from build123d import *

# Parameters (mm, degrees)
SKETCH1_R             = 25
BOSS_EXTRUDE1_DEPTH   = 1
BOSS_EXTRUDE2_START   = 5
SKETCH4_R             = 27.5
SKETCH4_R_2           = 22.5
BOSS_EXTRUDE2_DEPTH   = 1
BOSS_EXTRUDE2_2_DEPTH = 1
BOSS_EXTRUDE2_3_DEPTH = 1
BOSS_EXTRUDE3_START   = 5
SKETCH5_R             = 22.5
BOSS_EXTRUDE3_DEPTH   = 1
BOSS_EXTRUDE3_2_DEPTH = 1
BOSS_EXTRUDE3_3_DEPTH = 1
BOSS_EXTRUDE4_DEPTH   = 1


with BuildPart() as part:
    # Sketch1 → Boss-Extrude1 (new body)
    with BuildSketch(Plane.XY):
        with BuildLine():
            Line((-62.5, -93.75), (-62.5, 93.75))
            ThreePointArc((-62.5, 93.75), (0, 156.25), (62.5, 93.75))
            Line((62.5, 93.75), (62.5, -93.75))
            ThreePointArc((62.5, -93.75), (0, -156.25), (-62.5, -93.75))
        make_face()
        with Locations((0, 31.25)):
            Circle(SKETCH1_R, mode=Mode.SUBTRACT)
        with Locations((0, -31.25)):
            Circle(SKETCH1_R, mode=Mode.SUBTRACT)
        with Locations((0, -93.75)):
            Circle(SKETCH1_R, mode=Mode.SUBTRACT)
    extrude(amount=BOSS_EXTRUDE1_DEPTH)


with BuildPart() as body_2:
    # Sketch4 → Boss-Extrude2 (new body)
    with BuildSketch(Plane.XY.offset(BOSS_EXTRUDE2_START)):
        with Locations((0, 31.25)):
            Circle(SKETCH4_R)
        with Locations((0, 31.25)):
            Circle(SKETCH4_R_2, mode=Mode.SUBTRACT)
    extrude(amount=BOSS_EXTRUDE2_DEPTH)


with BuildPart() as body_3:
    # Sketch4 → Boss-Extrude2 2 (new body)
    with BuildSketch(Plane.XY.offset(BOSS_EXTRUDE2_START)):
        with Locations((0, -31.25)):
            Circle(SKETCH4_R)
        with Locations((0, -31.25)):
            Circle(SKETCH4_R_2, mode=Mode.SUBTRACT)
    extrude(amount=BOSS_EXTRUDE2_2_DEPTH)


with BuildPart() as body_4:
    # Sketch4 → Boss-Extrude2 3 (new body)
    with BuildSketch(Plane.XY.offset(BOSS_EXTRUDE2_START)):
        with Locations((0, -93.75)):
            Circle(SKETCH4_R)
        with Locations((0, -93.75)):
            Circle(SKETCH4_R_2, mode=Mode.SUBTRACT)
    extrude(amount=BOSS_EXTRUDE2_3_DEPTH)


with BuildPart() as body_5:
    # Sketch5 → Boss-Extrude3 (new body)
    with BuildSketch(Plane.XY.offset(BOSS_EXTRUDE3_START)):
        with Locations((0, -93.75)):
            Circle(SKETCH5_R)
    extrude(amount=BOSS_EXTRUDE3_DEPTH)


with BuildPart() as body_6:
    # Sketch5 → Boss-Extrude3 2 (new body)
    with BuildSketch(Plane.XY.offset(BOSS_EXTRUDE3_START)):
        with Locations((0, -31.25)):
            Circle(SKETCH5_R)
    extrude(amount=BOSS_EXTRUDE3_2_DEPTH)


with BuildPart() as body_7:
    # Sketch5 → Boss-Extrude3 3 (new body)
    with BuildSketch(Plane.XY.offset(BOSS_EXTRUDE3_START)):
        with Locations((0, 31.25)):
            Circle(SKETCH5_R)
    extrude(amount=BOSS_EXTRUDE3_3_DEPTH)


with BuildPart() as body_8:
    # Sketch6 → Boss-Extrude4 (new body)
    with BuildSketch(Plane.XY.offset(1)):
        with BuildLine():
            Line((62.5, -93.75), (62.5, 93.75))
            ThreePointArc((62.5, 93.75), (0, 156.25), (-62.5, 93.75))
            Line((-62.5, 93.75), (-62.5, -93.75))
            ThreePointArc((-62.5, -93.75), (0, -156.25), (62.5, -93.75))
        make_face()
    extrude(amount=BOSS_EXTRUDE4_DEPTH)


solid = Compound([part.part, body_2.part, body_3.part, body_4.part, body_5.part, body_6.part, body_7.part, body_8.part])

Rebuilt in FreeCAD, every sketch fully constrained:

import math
import FreeCAD as App
import Part
import Sketcher
from FreeCAD import Vector
Q = App.Units.Quantity

doc = App.newDocument("Part")
body = doc.addObject("PartDesign::Body", "Body")

sketch1 = doc.addObject("Sketcher::SketchObject", "Sketch")
body.addObject(sketch1)
sketch1.AttachmentSupport = (doc.XY_Plane, [""])
sketch1.MapMode = "FlatFace"
sketch1.addGeometry([
    Part.LineSegment(Vector(-62, 94, 0), Vector(-62, -94, 0)),
    Part.ArcOfCircle(Part.Circle(Vector(0, -94, 0), Vector(0, 0, 1), 62), math.radians(180), math.radians(360)),
    Part.LineSegment(Vector(62, -94, 0), Vector(62, 94, 0)),
    Part.ArcOfCircle(Part.Circle(Vector(0, 94, 0), Vector(0, 0, 1), 62), math.radians(0), math.radians(180)),
    Part.Circle(Vector(0, -94, 0), Vector(0, 0, 1), 25),
    Part.Circle(Vector(0, -31, 0), Vector(0, 0, 1), 25),
    Part.Circle(Vector(0, 31, 0), Vector(0, 0, 1), 25),
], False)
sketch1.addConstraint([
    Sketcher.Constraint("Tangent", 0, 2, 1, 1),
    Sketcher.Constraint("Tangent", 1, 2, 2, 1),
    Sketcher.Constraint("Tangent", 2, 2, 3, 1),
    Sketcher.Constraint("Tangent", 3, 2, 0, 1),
    Sketcher.Constraint("Vertical", 0),
    Sketcher.Constraint("Vertical", 2),
    Sketcher.Constraint("Coincident", 4, 3, 1, 3),
    Sketcher.Constraint("Equal", 4, 5),
    Sketcher.Constraint("Equal", 5, 6),
    Sketcher.Constraint("Symmetric", 1, 3, 3, 3, -1, 1),
    Sketcher.Constraint("Symmetric", 5, 3, 6, 3, -1, 1),
    Sketcher.Constraint("PointOnObject", 5, 3, -2),
    Sketcher.Constraint("Diameter", 4, Q("50 mm")),
    Sketcher.Constraint("Radius", 1, Q("62.5 mm")),
    Sketcher.Constraint("DistanceY", 0, 2, 0, 1, Q("187.5 mm")),
    Sketcher.Constraint("DistanceY", 5, 3, 3, 3, Q("125 mm")),
])
pad1 = doc.addObject("PartDesign::Pad", "Pad")
body.addObject(pad1)
pad1.Profile = sketch1
pad1.Length = 1
body2 = doc.addObject("PartDesign::Body", "Body001")

sketch2 = doc.addObject("Sketcher::SketchObject", "Sketch001")
body2.addObject(sketch2)
sketch2.AttachmentSupport = (doc.getObject("XY_Plane001"), [""])
sketch2.MapMode = "FlatFace"
sketch2.AttachmentOffset = App.Placement(Vector(0, 0, 5), App.Rotation())
sketch2.addGeometry([
    Part.Circle(Vector(0, 31, 0), Vector(0, 0, 1), 28),
    Part.Circle(Vector(0, 31, 0), Vector(0, 0, 1), 22),
], False)
sketch2.addConstraint([
    Sketcher.Constraint("Coincident", 1, 3, 0, 3),
    Sketcher.Constraint("PointOnObject", 0, 3, -2),
    Sketcher.Constraint("Diameter", 0, Q("55 mm")),
    Sketcher.Constraint("Diameter", 1, Q("45 mm")),
    Sketcher.Constraint("DistanceY", -1, 1, 0, 3, Q("31.25 mm")),
])
pad2 = doc.addObject("PartDesign::Pad", "Pad001")
body2.addObject(pad2)
pad2.Profile = sketch2
pad2.Length = 1
body3 = doc.addObject("PartDesign::Body", "Body002")

sketch3 = doc.addObject("Sketcher::SketchObject", "Sketch002")
body3.addObject(sketch3)
sketch3.AttachmentSupport = (doc.getObject("XY_Plane002"), [""])
sketch3.MapMode = "FlatFace"
sketch3.AttachmentOffset = App.Placement(Vector(0, 0, 5), App.Rotation())
sketch3.addGeometry([
    Part.Circle(Vector(0, -31, 0), Vector(0, 0, 1), 28),
    Part.Circle(Vector(0, -31, 0), Vector(0, 0, 1), 22),
], False)
sketch3.addConstraint([
    Sketcher.Constraint("Coincident", 1, 3, 0, 3),
    Sketcher.Constraint("PointOnObject", 0, 3, -2),
    Sketcher.Constraint("Diameter", 0, Q("55 mm")),
    Sketcher.Constraint("Diameter", 1, Q("45 mm")),
    Sketcher.Constraint("DistanceY", 0, 3, -1, 1, Q("31.25 mm")),
])
pad3 = doc.addObject("PartDesign::Pad", "Pad002")
body3.addObject(pad3)
pad3.Profile = sketch3
pad3.Length = 1
body4 = doc.addObject("PartDesign::Body", "Body003")

sketch4 = doc.addObject("Sketcher::SketchObject", "Sketch003")
body4.addObject(sketch4)
sketch4.AttachmentSupport = (doc.getObject("XY_Plane003"), [""])
sketch4.MapMode = "FlatFace"
sketch4.AttachmentOffset = App.Placement(Vector(0, 0, 5), App.Rotation())
sketch4.addGeometry([
    Part.Circle(Vector(0, -94, 0), Vector(0, 0, 1), 28),
    Part.Circle(Vector(0, -94, 0), Vector(0, 0, 1), 22),
], False)
sketch4.addConstraint([
    Sketcher.Constraint("Coincident", 1, 3, 0, 3),
    Sketcher.Constraint("PointOnObject", 0, 3, -2),
    Sketcher.Constraint("Diameter", 0, Q("55 mm")),
    Sketcher.Constraint("Diameter", 1, Q("45 mm")),
    Sketcher.Constraint("DistanceY", 0, 3, -1, 1, Q("93.75 mm")),
])
pad4 = doc.addObject("PartDesign::Pad", "Pad003")
body4.addObject(pad4)
pad4.Profile = sketch4
pad4.Length = 1
body5 = doc.addObject("PartDesign::Body", "Body004")

sketch5 = doc.addObject("Sketcher::SketchObject", "Sketch004")
body5.addObject(sketch5)
sketch5.AttachmentSupport = (doc.getObject("XY_Plane004"), [""])
sketch5.MapMode = "FlatFace"
sketch5.AttachmentOffset = App.Placement(Vector(0, 0, 5), App.Rotation())
sketch5.addGeometry(Part.Circle(Vector(0, -94, 0), Vector(0, 0, 1), 22), False)
sketch5.addConstraint([
    Sketcher.Constraint("PointOnObject", 0, 3, -2),
    Sketcher.Constraint("Diameter", 0, Q("45 mm")),
    Sketcher.Constraint("DistanceY", 0, 3, -1, 1, Q("93.75 mm")),
])
pad5 = doc.addObject("PartDesign::Pad", "Pad004")
body5.addObject(pad5)
pad5.Profile = sketch5
pad5.Length = 1
body6 = doc.addObject("PartDesign::Body", "Body005")

sketch6 = doc.addObject("Sketcher::SketchObject", "Sketch005")
body6.addObject(sketch6)
sketch6.AttachmentSupport = (doc.getObject("XY_Plane005"), [""])
sketch6.MapMode = "FlatFace"
sketch6.AttachmentOffset = App.Placement(Vector(0, 0, 5), App.Rotation())
sketch6.addGeometry(Part.Circle(Vector(0, -31, 0), Vector(0, 0, 1), 22), False)
sketch6.addConstraint([
    Sketcher.Constraint("PointOnObject", 0, 3, -2),
    Sketcher.Constraint("Diameter", 0, Q("45 mm")),
    Sketcher.Constraint("DistanceY", 0, 3, -1, 1, Q("31.25 mm")),
])
pad6 = doc.addObject("PartDesign::Pad", "Pad005")
body6.addObject(pad6)
pad6.Profile = sketch6
pad6.Length = 1
body7 = doc.addObject("PartDesign::Body", "Body006")

sketch7 = doc.addObject("Sketcher::SketchObject", "Sketch006")
body7.addObject(sketch7)
sketch7.AttachmentSupport = (doc.getObject("XY_Plane006"), [""])
sketch7.MapMode = "FlatFace"
sketch7.AttachmentOffset = App.Placement(Vector(0, 0, 5), App.Rotation())
sketch7.addGeometry(Part.Circle(Vector(0, 31, 0), Vector(0, 0, 1), 22), False)
sketch7.addConstraint([
    Sketcher.Constraint("PointOnObject", 0, 3, -2),
    Sketcher.Constraint("Diameter", 0, Q("45 mm")),
    Sketcher.Constraint("DistanceY", -1, 1, 0, 3, Q("31.25 mm")),
])
pad7 = doc.addObject("PartDesign::Pad", "Pad006")
body7.addObject(pad7)
pad7.Profile = sketch7
pad7.Length = 1
body8 = doc.addObject("PartDesign::Body", "Body007")

sketch8 = doc.addObject("Sketcher::SketchObject", "Sketch007")
body8.addObject(sketch8)
sketch8.AttachmentSupport = (doc.getObject("XY_Plane007"), [""])
sketch8.MapMode = "FlatFace"
sketch8.AttachmentOffset = App.Placement(Vector(0, 0, 1), App.Rotation())
sketch8.addGeometry([
    Part.LineSegment(Vector(62, -94, 0), Vector(62, 94, 0)),
    Part.ArcOfCircle(Part.Circle(Vector(0, 94, 0), Vector(0, 0, 1), 62), math.radians(0), math.radians(180)),
    Part.LineSegment(Vector(-62, 94, 0), Vector(-62, -94, 0)),
    Part.ArcOfCircle(Part.Circle(Vector(0, -94, 0), Vector(0, 0, 1), 62), math.radians(180), math.radians(360)),
], False)
sketch8.addConstraint([
    Sketcher.Constraint("Tangent", 0, 2, 1, 1),
    Sketcher.Constraint("Tangent", 1, 2, 2, 1),
    Sketcher.Constraint("Tangent", 2, 2, 3, 1),
    Sketcher.Constraint("Tangent", 3, 2, 0, 1),
    Sketcher.Constraint("Vertical", 0),
    Sketcher.Constraint("Vertical", 2),
    Sketcher.Constraint("Symmetric", 1, 3, 3, 3, -1, 1),
    Sketcher.Constraint("Radius", 1, Q("62.5 mm")),
    Sketcher.Constraint("DistanceY", 0, 1, 0, 2, Q("187.5 mm")),
])
pad8 = doc.addObject("PartDesign::Pad", "Pad007")
body8.addObject(pad8)
pad8.Profile = sketch8
pad8.Length = 1

doc.recompute()
